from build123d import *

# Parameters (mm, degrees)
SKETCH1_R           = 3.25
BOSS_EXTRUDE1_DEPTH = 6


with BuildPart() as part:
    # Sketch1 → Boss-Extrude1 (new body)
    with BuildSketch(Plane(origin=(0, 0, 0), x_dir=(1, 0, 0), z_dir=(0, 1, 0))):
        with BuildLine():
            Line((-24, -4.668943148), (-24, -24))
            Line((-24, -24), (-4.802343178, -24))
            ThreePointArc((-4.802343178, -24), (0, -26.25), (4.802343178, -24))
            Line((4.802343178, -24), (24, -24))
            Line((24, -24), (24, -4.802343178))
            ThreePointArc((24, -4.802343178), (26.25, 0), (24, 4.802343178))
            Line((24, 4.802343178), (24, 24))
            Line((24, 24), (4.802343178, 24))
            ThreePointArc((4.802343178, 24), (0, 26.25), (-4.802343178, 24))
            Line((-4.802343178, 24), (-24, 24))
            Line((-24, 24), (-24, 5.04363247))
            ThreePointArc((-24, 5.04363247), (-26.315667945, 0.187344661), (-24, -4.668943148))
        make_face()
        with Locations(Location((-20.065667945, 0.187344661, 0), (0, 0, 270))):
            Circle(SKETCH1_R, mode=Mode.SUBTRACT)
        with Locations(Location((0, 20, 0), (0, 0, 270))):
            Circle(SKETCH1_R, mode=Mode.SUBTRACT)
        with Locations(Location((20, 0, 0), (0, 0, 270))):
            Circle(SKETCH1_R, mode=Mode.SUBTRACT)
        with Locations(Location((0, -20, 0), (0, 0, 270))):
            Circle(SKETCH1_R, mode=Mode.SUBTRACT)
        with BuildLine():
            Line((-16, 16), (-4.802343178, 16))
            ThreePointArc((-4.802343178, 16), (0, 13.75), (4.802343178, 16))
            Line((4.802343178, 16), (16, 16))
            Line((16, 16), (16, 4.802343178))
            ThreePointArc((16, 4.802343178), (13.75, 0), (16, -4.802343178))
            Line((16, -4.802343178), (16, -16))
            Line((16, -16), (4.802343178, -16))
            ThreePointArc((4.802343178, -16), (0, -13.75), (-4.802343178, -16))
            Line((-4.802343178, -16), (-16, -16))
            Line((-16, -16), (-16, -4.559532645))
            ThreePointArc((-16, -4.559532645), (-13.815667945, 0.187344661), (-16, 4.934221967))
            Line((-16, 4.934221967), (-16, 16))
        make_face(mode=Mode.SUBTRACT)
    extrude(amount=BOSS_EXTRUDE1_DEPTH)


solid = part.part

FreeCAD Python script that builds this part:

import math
import FreeCAD as App
import Part
import Sketcher

V = App.Vector

doc = App.newDocument("Part")
params = doc.addObject("Spreadsheet::Sheet", "Params")
for row, (alias, value) in enumerate([
    ("sketch1_diameter", "6.5 mm"),
    ("sketch1_radius", "6.25 mm"),
    ("pad1_length", "6 mm"),
], start=1):
    params.set(f"A{row}", alias)
    params.set(f"B{row}", "=" + value)
    params.setAlias(f"B{row}", alias)

body = doc.addObject("PartDesign::Body", "Body")

# Sketch on XZ plane
sketch1 = doc.addObject("Sketcher::SketchObject", "Sketch")
body.addObject(sketch1)
sketch1.AttachmentSupport = (doc.XZ_Plane, [""])
sketch1.MapMode = "FlatFace"
sketch1.addGeometry([
    Part.LineSegment(V(-24, 4.7, 0), V(-24, 24, 0)),  # 0
    Part.LineSegment(V(-24, 24, 0), V(-4.8, 24, 0)),  # 1
    Part.ArcOfCircle(Part.Circle(V(0, 20, 0), V(0, 0, 1), 6.2), math.radians(40), math.radians(140)),  # 2
    Part.LineSegment(V(4.8, 24, 0), V(24, 24, 0)),  # 3
    Part.LineSegment(V(24, 24, 0), V(24, 4.8, 0)),  # 4
    Part.ArcOfCircle(Part.Circle(V(20, 0, 0), V(0, 0, 1), 6.2), math.radians(-50), math.radians(50)),  # 5
    Part.LineSegment(V(24, -4.8, 0), V(24, -24, 0)),  # 6
    Part.LineSegment(V(24, -24, 0), V(4.8, -24, 0)),  # 7
    Part.ArcOfCircle(Part.Circle(V(0, -20, 0), V(0, 0, 1), 6.2), math.radians(-140), math.radians(-40)),  # 8
    Part.LineSegment(V(-4.8, -24, 0), V(-24, -24, 0)),  # 9
    Part.LineSegment(V(-24, -24, 0), V(-24, -5, 0)),  # 10
    Part.ArcOfCircle(Part.Circle(V(-20.1, -0.2, 0), V(0, 0, 1), 6.3), math.radians(129), math.radians(231)),  # 11
    Part.Circle(V(0, 20, 0), V(0, 0, 1), 3.2),  # 12
    Part.Circle(V(-20.1, -0.2, 0), V(0, 0, 1), 3.2),  # 13
    Part.LineSegment(V(-16, -4.9, 0), V(-16, -16, 0)),  # 14
    Part.LineSegment(V(-16, -16, 0), V(-4.8, -16, 0)),  # 15
    Part.ArcOfCircle(Part.Circle(V(0, -20, 0), V(0, 0, 1), 6.2), math.radians(40), math.radians(140)),  # 16
    Part.LineSegment(V(4.8, -16, 0), V(16, -16, 0)),  # 17
    Part.LineSegment(V(16, -16, 0), V(16, -4.8, 0)),  # 18
    Part.ArcOfCircle(Part.Circle(V(20, 0, 0), V(0, 0, 1), 6.2), math.radians(130), math.radians(230)),  # 19
    Part.LineSegment(V(16, 4.8, 0), V(16, 16, 0)),  # 20
    Part.LineSegment(V(16, 16, 0), V(4.8, 16, 0)),  # 21
    Part.ArcOfCircle(Part.Circle(V(0, 20, 0), V(0, 0, 1), 6.2), math.radians(-140), math.radians(-40)),  # 22
    Part.LineSegment(V(-4.8, 16, 0), V(-16, 16, 0)),  # 23
    Part.LineSegment(V(-16, 16, 0), V(-16, 4.6, 0)),  # 24
    Part.ArcOfCircle(Part.Circle(V(-20.1, -0.2, 0), V(0, 0, 1), 6.2), math.radians(-49), math.radians(49)),  # 25
    Part.Circle(V(20, 0, 0), V(0, 0, 1), 3.2),  # 26
    Part.Circle(V(0, -20, 0), V(0, 0, 1), 3.2),  # 27
], False)
sketch1.addConstraint([
    Sketcher.Constraint("Coincident", 0, 2, 1, 1),
    Sketcher.Constraint("Coincident", 1, 2, 2, 2),
    Sketcher.Constraint("Coincident", 2, 1, 3, 1),
    Sketcher.Constraint("Coincident", 3, 2, 4, 1),
    Sketcher.Constraint("Coincident", 4, 2, 5, 2),
    Sketcher.Constraint("Coincident", 5, 1, 6, 1),
    Sketcher.Constraint("Coincident", 6, 2, 7, 1),
    Sketcher.Constraint("Coincident", 7, 2, 8, 2),
    Sketcher.Constraint("Coincident", 8, 1, 9, 1),
    Sketcher.Constraint("Coincident", 9, 2, 10, 1),
    Sketcher.Constraint("Coincident", 10, 2, 11, 2),
    Sketcher.Constraint("Coincident", 11, 1, 0, 1),
    Sketcher.Constraint("Coincident", 14, 2, 15, 1),
    Sketcher.Constraint("Coincident", 15, 2, 16, 2),
    Sketcher.Constraint("Coincident", 16, 1, 17, 1),
    Sketcher.Constraint("Coincident", 17, 2, 18, 1),
    Sketcher.Constraint("Coincident", 18, 2, 19, 2),
    Sketcher.Constraint("Coincident", 19, 1, 20, 1),
    Sketcher.Constraint("Coincident", 20, 2, 21, 1),
    Sketcher.Constraint("Coincident", 21, 2, 22, 2),
    Sketcher.Constraint("Coincident", 22, 1, 23, 1),
    Sketcher.Constraint("Coincident", 23, 2, 24, 1),
    Sketcher.Constraint("Coincident", 24, 2, 25, 2),
    Sketcher.Constraint("Coincident", 25, 1, 14, 1),
    Sketcher.Constraint("Vertical", 0),
    Sketcher.Constraint("Horizontal", 1),
    Sketcher.Constraint("Horizontal", 3),
    Sketcher.Constraint("Vertical", 4),
    Sketcher.Constraint("Vertical", 6),
    Sketcher.Constraint("Horizontal", 7),
    Sketcher.Constraint("Horizontal", 9),
    Sketcher.Constraint("Vertical", 10),
    Sketcher.Constraint("Vertical", 14),
    Sketcher.Constraint("Horizontal", 15),
    Sketcher.Constraint("Horizontal", 17),
    Sketcher.Constraint("Vertical", 18),
    Sketcher.Constraint("Vertical", 20),
    Sketcher.Constraint("Horizontal", 21),
    Sketcher.Constraint("Horizontal", 23),
    Sketcher.Constraint("Vertical", 24),
    Sketcher.Constraint("Coincident", 12, 3, 2, 3),
    Sketcher.Constraint("Coincident", 13, 3, 11, 3),
    Sketcher.Constraint("Coincident", 16, 3, 8, 3),
    Sketcher.Constraint("Coincident", 19, 3, 5, 3),
    Sketcher.Constraint("Coincident", 22, 3, 2, 3),
    Sketcher.Constraint("Coincident", 25, 3, 11, 3),
    Sketcher.Constraint("Coincident", 26, 3, 5, 3),
    Sketcher.Constraint("Coincident", 27, 3, 8, 3),
    Sketcher.Constraint("Equal", 2, 5),
    Sketcher.Constraint("Equal", 5, 8),
    Sketcher.Constraint("Equal", 8, 11),
    Sketcher.Constraint("Equal", 12, 13),
    Sketcher.Constraint("Equal", 11, 16),
    Sketcher.Constraint("Equal", 16, 19),
    Sketcher.Constraint("Equal", 19, 22),
    Sketcher.Constraint("Equal", 22, 25),
    Sketcher.Constraint("Equal", 13, 26),
    Sketcher.Constraint("Equal", 26, 27),
    Sketcher.Constraint("Symmetric", 2, 3, 8, 3, -1, 1),
    Sketcher.Constraint("Symmetric", 0, 2, 6, 2, -1, 1),
    Sketcher.Constraint("Symmetric", 3, 2, 9, 2, -1, 1),
    Sketcher.Constraint("Symmetric", 14, 2, 20, 2, -1, 1),
    Sketcher.Constraint("Symmetric", 17, 2, 23, 2, -1, 1),
    Sketcher.Constraint("Symmetric", 1, 2, 2, 1, -2),
    Sketcher.Constraint("Symmetric", 14, 2, 17, 2, -2),
    Sketcher.Constraint("Symmetric", 4, 2, 5, 1, -1),
    Sketcher.Constraint("Horizontal", 5, 1, 18, 2),
    Sketcher.Constraint("Vertical", 8, 1, 15, 2),
    Sketcher.Constraint("Equal", 9, 4),
    Sketcher.Constraint("Equal", 23, 18),
    Sketcher.Constraint("Diameter", 12, 6.5),
    Sketcher.Constraint("Radius", 2, 6.25),
    Sketcher.Constraint("DistanceY", -1, 1, 2, 3, 20.0),
    Sketcher.Constraint("DistanceX", 0, 2, -1, 1, 24.0),
    Sketcher.Constraint("DistanceY", 14, 2, 14, 1, 11.065778),
    Sketcher.Constraint("DistanceY", 0, 1, 0, 2, 19.331057),
])
sketch1.setExpression("Constraints[70]", "Params.sketch1_diameter")
sketch1.setExpression("Constraints[71]", "Params.sketch1_radius")
pad1 = doc.addObject("PartDesign::Pad", "Pad")
body.addObject(pad1)
pad1.Profile = sketch1
pad1.setExpression("Length", "Params.pad1_length")
pad1.Reversed = True

doc.recompute()
